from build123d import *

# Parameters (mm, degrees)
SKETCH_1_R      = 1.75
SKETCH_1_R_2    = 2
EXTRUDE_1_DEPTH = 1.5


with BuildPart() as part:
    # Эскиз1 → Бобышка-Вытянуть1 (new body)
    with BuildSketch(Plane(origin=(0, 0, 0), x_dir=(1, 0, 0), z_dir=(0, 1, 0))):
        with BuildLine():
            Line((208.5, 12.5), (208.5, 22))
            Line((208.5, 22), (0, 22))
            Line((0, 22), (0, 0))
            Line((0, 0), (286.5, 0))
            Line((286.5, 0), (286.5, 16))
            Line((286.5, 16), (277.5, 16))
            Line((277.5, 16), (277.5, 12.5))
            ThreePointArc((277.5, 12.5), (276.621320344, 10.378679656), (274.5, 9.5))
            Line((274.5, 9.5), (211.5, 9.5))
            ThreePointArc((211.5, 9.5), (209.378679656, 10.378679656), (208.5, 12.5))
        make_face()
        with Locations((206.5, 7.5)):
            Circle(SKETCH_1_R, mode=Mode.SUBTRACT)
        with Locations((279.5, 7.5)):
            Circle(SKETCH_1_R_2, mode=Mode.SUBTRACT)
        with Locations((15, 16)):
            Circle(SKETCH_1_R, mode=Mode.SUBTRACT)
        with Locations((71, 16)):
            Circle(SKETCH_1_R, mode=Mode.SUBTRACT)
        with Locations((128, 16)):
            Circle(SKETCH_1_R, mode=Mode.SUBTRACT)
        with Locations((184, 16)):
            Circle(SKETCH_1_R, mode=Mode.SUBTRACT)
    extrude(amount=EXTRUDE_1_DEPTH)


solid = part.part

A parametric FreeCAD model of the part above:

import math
import FreeCAD as App
import Part
import Sketcher

V = App.Vector

doc = App.newDocument("Part")
params = doc.addObject("Spreadsheet::Sheet", "Params")
for row, (alias, value) in enumerate([
    ("sketch1_diameter", "4 mm"),
    ("sketch1_radius", "3 mm"),
    ("sketch1_diameter2", "3.5 mm"),
    ("sketch1_width", "9 mm"),
    ("sketch1_width2", "63 mm"),
    ("pad1_length", "1.5 mm"),
], start=1):
    params.set(f"A{row}", alias)
    params.set(f"B{row}", "=" + value)
    params.setAlias(f"B{row}", alias)

body = doc.addObject("PartDesign::Body", "Body")

sketch1 = body.newObject("Sketcher::SketchObject", "Sketch")
sketch1.AttachmentSupport = (doc.getObject("XZ_Plane"), [""])
sketch1.MapMode = "FlatFace"
sketch1.addGeometry(Part.LineSegment(V(208.5, -12.5, 0), V(208.5, -22, 0)), False)
sketch1.addGeometry(Part.LineSegment(V(208.5, -22, 0), V(0, -22, 0)), False)
sketch1.addGeometry(Part.LineSegment(V(0, -22, 0), V(0, 0, 0)), False)
sketch1.addGeometry(Part.LineSegment(V(0, 0, 0), V(286.5, 0, 0)), False)
sketch1.addGeometry(Part.LineSegment(V(286.5, 0, 0), V(286.5, -16, 0)), False)
sketch1.addGeometry(Part.LineSegment(V(286.5, -16, 0), V(277.5, -16, 0)), False)
sketch1.addGeometry(Part.LineSegment(V(277.5, -16, 0), V(277.5, -12.5, 0)), False)
sketch1.addGeometry(Part.ArcOfCircle(Part.Circle(V(274.5, -12.5, 0), V(0, 0, 1), 3), math.radians(0), math.radians(90)), False)
sketch1.addGeometry(Part.LineSegment(V(274.5, -9.5, 0), V(211.5, -9.5, 0)), False)
sketch1.addGeometry(Part.ArcOfCircle(Part.Circle(V(211.5, -12.5, 0), V(0, 0, 1), 3), math.radians(90), math.radians(180)), False)
sketch1.addGeometry(Part.Circle(V(206.5, -7.5, 0), V(0, 0, 1), 1.75), False)
sketch1.addGeometry(Part.Circle(V(279.5, -7.5, 0), V(0, 0, 1), 2), False)
sketch1.addGeometry(Part.Circle(V(15, -16, 0), V(0, 0, 1), 1.75), False)
sketch1.addGeometry(Part.Circle(V(71, -16, 0), V(0, 0, 1), 1.75), False)
sketch1.addGeometry(Part.Circle(V(128, -16, 0), V(0, 0, 1), 1.75), False)
sketch1.addGeometry(Part.Circle(V(184, -16, 0), V(0, 0, 1), 1.75), False)
sketch1.addConstraint(Sketcher.Constraint("Coincident", 0, 2, 1, 1))
sketch1.addConstraint(Sketcher.Constraint("Coincident", 1, 2, 2, 1))
sketch1.addConstraint(Sketcher.Constraint("Coincident", 2, 2, 3, 1))
sketch1.addConstraint(Sketcher.Constraint("Coincident", 3, 2, 4, 1))
sketch1.addConstraint(Sketcher.Constraint("Coincident", 4, 2, 5, 1))
sketch1.addConstraint(Sketcher.Constraint("Coincident", 5, 2, 6, 1))
sketch1.addConstraint(Sketcher.Constraint("Tangent", 6, 2, 7, 1))
sketch1.addConstraint(Sketcher.Constraint("Tangent", 7, 2, 8, 1))
sketch1.addConstraint(Sketcher.Constraint("Tangent", 8, 2, 9, 1))
sketch1.addConstraint(Sketcher.Constraint("Tangent", 9, 2, 0, 1))
sketch1.addConstraint(Sketcher.Constraint("Vertical", 0))
sketch1.addConstraint(Sketcher.Constraint("Horizontal", 1))
sketch1.addConstraint(Sketcher.Constraint("Vertical", 2))
sketch1.addConstraint(Sketcher.Constraint("Horizontal", 3))
sketch1.addConstraint(Sketcher.Constraint("Vertical", 4))
sketch1.addConstraint(Sketcher.Constraint("Horizontal", 5))
sketch1.addConstraint(Sketcher.Constraint("Vertical", 6))
sketch1.addConstraint(Sketcher.Constraint("Horizontal", 8))
sketch1.addConstraint(Sketcher.Constraint("Coincident", 2, 2, -1, 1))
sketch1.addConstraint(Sketcher.Constraint("Equal", 7, 9))
sketch1.addConstraint(Sketcher.Constraint("Equal", 10, 12))
sketch1.addConstraint(Sketcher.Constraint("Equal", 12, 13))
sketch1.addConstraint(Sketcher.Constraint("Equal", 13, 14))
sketch1.addConstraint(Sketcher.Constraint("Equal", 14, 15))
sketch1.addConstraint(Sketcher.Constraint("Horizontal", 10, 3, 11, 3))
sketch1.addConstraint(Sketcher.Constraint("Horizontal", 12, 3, 13, 3))
sketch1.addConstraint(Sketcher.Constraint("Horizontal", 13, 3, 14, 3))
sketch1.addConstraint(Sketcher.Constraint("Horizontal", 14, 3, 15, 3))
sketch1.addConstraint(Sketcher.Constraint("Horizontal", 15, 3, 4, 2))
sketch1.addConstraint(Sketcher.Constraint("Diameter", 11, 4.0))
sketch1.addConstraint(Sketcher.Constraint("Radius", 7, 3.0))
sketch1.addConstraint(Sketcher.Constraint("Diameter", 10, 3.5))
sketch1.addConstraint(Sketcher.Constraint("DistanceX", 5, 2, 5, 1, 9.0))
sketch1.addConstraint(Sketcher.Constraint("DistanceX", 8, 2, 8, 1, 63.0))
sketch1.addConstraint(Sketcher.Constraint("DistanceY", 2, 1, 2, 2, 22.0))
sketch1.addConstraint(Sketcher.Constraint("DistanceY", 4, 2, 4, 1, 16.0))
sketch1.addConstraint(Sketcher.Constraint("DistanceX", 1, 2, 1, 1, 208.5))
sketch1.addConstraint(Sketcher.Constraint("DistanceY", 0, 2, 0, 1, 9.5))
sketch1.addConstraint(Sketcher.Constraint("DistanceX", -1, 1, 12, 3, 15.0))
sketch1.addConstraint(Sketcher.Constraint("DistanceX", -1, 1, 13, 3, 71.0))
sketch1.addConstraint(Sketcher.Constraint("DistanceX", -1, 1, 14, 3, 128.0))
sketch1.addConstraint(Sketcher.Constraint("DistanceX", -1, 1, 15, 3, 184.0))
sketch1.addConstraint(Sketcher.Constraint("DistanceX", 10, 3, 9, 3, 5.0))
sketch1.addConstraint(Sketcher.Constraint("DistanceY", 9, 3, 10, 3, 5.0))
sketch1.addConstraint(Sketcher.Constraint("DistanceX", 7, 3, 11, 3, 5.0))
sketch1.setExpression("Constraints[29]", "Params.sketch1_diameter")
sketch1.setExpression("Constraints[30]", "Params.sketch1_radius")
sketch1.setExpression("Constraints[31]", "Params.sketch1_diameter2")
sketch1.setExpression("Constraints[32]", "Params.sketch1_width")
sketch1.setExpression("Constraints[33]", "Params.sketch1_width2")
pad1 = body.newObject("PartDesign::Pad", "Pad")
pad1.Profile = sketch1
pad1.setExpression("Length", "Params.pad1_length")
pad1.Reversed = True

doc.recompute()
